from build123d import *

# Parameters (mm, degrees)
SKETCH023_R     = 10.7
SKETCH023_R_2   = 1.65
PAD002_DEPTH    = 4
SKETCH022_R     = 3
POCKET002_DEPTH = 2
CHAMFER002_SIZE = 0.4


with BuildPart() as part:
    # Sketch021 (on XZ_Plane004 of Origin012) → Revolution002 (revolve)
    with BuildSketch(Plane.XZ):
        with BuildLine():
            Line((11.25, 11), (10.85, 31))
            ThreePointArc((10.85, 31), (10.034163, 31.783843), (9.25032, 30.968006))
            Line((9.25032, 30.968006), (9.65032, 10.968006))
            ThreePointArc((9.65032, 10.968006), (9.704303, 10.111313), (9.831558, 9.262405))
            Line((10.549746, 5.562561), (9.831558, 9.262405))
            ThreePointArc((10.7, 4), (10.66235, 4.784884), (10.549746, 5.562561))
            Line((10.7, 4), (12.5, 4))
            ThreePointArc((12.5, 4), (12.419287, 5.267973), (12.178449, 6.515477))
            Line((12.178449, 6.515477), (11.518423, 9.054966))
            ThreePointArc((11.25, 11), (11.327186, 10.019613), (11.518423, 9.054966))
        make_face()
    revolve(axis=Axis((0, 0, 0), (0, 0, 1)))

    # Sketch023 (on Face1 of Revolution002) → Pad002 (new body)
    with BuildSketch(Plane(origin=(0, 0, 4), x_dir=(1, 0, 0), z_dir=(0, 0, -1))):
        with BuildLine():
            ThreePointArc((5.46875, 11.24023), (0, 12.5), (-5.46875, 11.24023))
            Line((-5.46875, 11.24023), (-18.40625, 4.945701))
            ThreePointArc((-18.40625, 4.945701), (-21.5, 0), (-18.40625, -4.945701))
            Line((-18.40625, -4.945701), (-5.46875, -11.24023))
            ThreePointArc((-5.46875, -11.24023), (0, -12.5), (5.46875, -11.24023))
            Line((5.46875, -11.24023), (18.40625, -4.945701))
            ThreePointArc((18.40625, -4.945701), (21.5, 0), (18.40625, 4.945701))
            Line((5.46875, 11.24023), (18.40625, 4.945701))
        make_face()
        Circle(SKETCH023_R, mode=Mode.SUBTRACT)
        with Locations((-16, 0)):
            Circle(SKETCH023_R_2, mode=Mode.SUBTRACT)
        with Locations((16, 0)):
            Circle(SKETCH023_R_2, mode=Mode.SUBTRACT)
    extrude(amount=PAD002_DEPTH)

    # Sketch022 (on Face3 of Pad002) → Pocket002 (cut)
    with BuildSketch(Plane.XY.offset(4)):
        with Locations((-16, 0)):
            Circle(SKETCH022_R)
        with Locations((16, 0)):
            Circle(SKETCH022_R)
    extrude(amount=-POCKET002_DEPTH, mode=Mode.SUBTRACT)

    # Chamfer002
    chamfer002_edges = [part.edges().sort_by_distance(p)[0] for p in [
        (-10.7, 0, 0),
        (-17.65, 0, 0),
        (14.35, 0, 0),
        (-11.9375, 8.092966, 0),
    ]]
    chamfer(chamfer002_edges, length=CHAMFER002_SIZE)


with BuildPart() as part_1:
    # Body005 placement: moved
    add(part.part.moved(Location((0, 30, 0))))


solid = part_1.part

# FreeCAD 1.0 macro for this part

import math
import FreeCAD as App
import Part
import Sketcher


def edges_at(feature, points):
    """Names of the edges that pass closest to the given points."""
    edges = feature.Shape.Edges
    near = lambda p: min(range(len(edges)), key=lambda i: edges[i].distToShape(Part.Vertex(*p))[0])
    return sorted({f"Edge{near(p) + 1}" for p in points})

doc = App.newDocument("Part")
body = doc.addObject("PartDesign::Body", "Body")

# Sketch on XZ plane
sketch1 = body.newObject("Sketcher::SketchObject", "Sketch")
sketch1.AttachmentSupport = (doc.getObject("XZ_Plane"), [""])
sketch1.MapMode = "FlatFace"
sketch1.addGeometry([
    Part.LineSegment(App.Vector(11.2, 11, 0), App.Vector(10.8, 31, 0)),  # 0
    Part.ArcOfCircle(Part.Circle(App.Vector(10.1, 31, 0), App.Vector(0, 0, 1), 0.8), math.radians(1), math.radians(181)),  # 1
    Part.LineSegment(App.Vector(9.3, 31, 0), App.Vector(9.7, 11, 0)),  # 2
    Part.ArcOfCircle(Part.Circle(App.Vector(19.6, 11.2, 0), App.Vector(0, 0, 1), 10), math.radians(-178.85), math.radians(-169.01)),  # 3
    Part.LineSegment(App.Vector(9.8, 9.3, 0), App.Vector(10.5, 5.6, 0)),  # 4
    Part.ArcOfCircle(Part.Circle(App.Vector(2.5, 4, 0), App.Vector(0, 0, 1), 8.2), math.radians(0), math.radians(10.99)),  # 5
    Part.LineSegment(App.Vector(10.7, 4, 0), App.Vector(12.5, 4, 0)),  # 6
    Part.ArcOfCircle(Part.Circle(App.Vector(2.5, 4, 0), App.Vector(0, 0, 1), 10), math.radians(0), math.radians(14.57)),  # 7
    Part.LineSegment(App.Vector(12.2, 6.5, 0), App.Vector(11.5, 9.1, 0)),  # 8
    Part.ArcOfCircle(Part.Circle(App.Vector(19.6, 11.2, 0), App.Vector(0, 0, 1), 8.4), math.radians(-178.85), math.radians(-165.43)),  # 9
], False)
sketch1.addConstraint([
    Sketcher.Constraint("Tangent", 0, 2, 1, 1),
    Sketcher.Constraint("Tangent", 1, 2, 2, 1),
    Sketcher.Constraint("Tangent", 2, 2, 3, 1),
    Sketcher.Constraint("Tangent", 3, 2, 4, 1),
    Sketcher.Constraint("Tangent", 4, 2, 5, 2),
    Sketcher.Constraint("Coincident", 5, 1, 6, 1),
    Sketcher.Constraint("Coincident", 6, 2, 7, 1),
    Sketcher.Constraint("Tangent", 7, 2, 8, 1),
    Sketcher.Constraint("Tangent", 8, 2, 9, 2),
    Sketcher.Constraint("Tangent", 9, 1, 0, 1),
    Sketcher.Constraint("Horizontal", 6),
    Sketcher.Constraint("Parallel", 0, 2),
    Sketcher.Constraint("Equal", 0, 2),
    Sketcher.Constraint("Radius", 1, 0.8),
    Sketcher.Constraint("DistanceX", 6, 1, 6, 2, 1.8),
    Sketcher.Constraint("DistanceY", -1, 1, 5, 3, 3.999998),
    Sketcher.Constraint("DistanceY", -1, 1, 0, 2, 31.0),
    Sketcher.Constraint("DistanceY", -1, 1, 5, 1, 4.0),
    Sketcher.Constraint("DistanceY", -1, 1, 9, 1, 11.0),
    Sketcher.Constraint("DistanceX", -1, 1, 5, 1, 10.7),
    Sketcher.Constraint("DistanceX", 1, 2, 2, 2, 0.4),
    Sketcher.Constraint("DistanceX", -1, 1, 0, 2, 10.85),
    Sketcher.Constraint("Radius", 9, 8.400061),
    Sketcher.Constraint("Radius", 3, 9.999915),
    Sketcher.Constraint("Radius", 5, 8.200045),
    Sketcher.Constraint("Radius", 7, 9.999937),
    Sketcher.Constraint("Distance", 8, 2.62386),
])
revolution = body.newObject("PartDesign::Revolution", "Revolution")
revolution.Profile = sketch1
revolution.ReferenceAxis = (sketch1, ["V_Axis"])
revolution.Angle = 360

# Sketch on XY plane
sketch2 = body.newObject("Sketcher::SketchObject", "Sketch001")
sketch2.AttachmentSupport = (doc.getObject("XY_Plane"), [""])
sketch2.MapMode = "FlatFace"
sketch2.AttachmentOffset = App.Placement(App.Vector(0, 0, 4), App.Rotation())
sketch2.addGeometry([
    Part.ArcOfCircle(Part.Circle(App.Vector(0, 0, 0), App.Vector(0, 0, 1), 12.5), math.radians(-116), math.radians(-64)),  # 0
    Part.LineSegment(App.Vector(-5.5, -11.2, 0), App.Vector(-18.4, -4.9, 0)),  # 1
    Part.ArcOfCircle(Part.Circle(App.Vector(-16, 0, 0), App.Vector(0, 0, 1), 5.5), math.radians(116), math.radians(244)),  # 2
    Part.LineSegment(App.Vector(-18.4, 4.9, 0), App.Vector(-5.5, 11.2, 0)),  # 3
    Part.ArcOfCircle(Part.Circle(App.Vector(0, 0, 0), App.Vector(0, 0, 1), 12.5), math.radians(64), math.radians(116)),  # 4
    Part.LineSegment(App.Vector(5.5, 11.2, 0), App.Vector(18.4, 4.9, 0)),  # 5
    Part.ArcOfCircle(Part.Circle(App.Vector(16, 0, 0), App.Vector(0, 0, 1), 5.5), math.radians(-64), math.radians(64)),  # 6
    Part.LineSegment(App.Vector(18.4, -4.9, 0), App.Vector(5.5, -11.2, 0)),  # 7
    Part.Circle(App.Vector(-16, 0, 0), App.Vector(0, 0, 1), 1.6),  # 8
    Part.Circle(App.Vector(0, 0, 0), App.Vector(0, 0, 1), 10.7),  # 9
    Part.Circle(App.Vector(16, 0, 0), App.Vector(0, 0, 1), 1.6),  # 10
], False)
sketch2.addConstraint([
    Sketcher.Constraint("Tangent", 0, 1, 1, 1),
    Sketcher.Constraint("Tangent", 1, 2, 2, 2),
    Sketcher.Constraint("Tangent", 2, 1, 3, 1),
    Sketcher.Constraint("Tangent", 3, 2, 4, 2),
    Sketcher.Constraint("Tangent", 4, 1, 5, 1),
    Sketcher.Constraint("Tangent", 5, 2, 6, 2),
    Sketcher.Constraint("Tangent", 6, 1, 7, 1),
    Sketcher.Constraint("Tangent", 7, 2, 0, 2),
    Sketcher.Constraint("Coincident", 0, 3, -1, 1),
    Sketcher.Constraint("Coincident", 4, 3, -1, 1),
    Sketcher.Constraint("Coincident", 9, 3, -1, 1),
    Sketcher.Constraint("Coincident", 8, 3, 2, 3),
    Sketcher.Constraint("Coincident", 10, 3, 6, 3),
    Sketcher.Constraint("Equal", 0, 4),
    Sketcher.Constraint("Equal", 2, 6),
    Sketcher.Constraint("Equal", 8, 10),
    Sketcher.Constraint("Symmetric", 2, 3, 6, 3, -1, 1),
    Sketcher.Constraint("PointOnObject", 2, 3, -1),
    Sketcher.Constraint("Diameter", 8, 3.3),
    Sketcher.Constraint("Diameter", 9, 21.4),
    Sketcher.Constraint("Radius", 0, 12.499999),
    Sketcher.Constraint("Radius", 2, 5.5),
    Sketcher.Constraint("DistanceX", 2, 3, -1, 1, 16.0),
])
pad1 = body.newObject("PartDesign::Pad", "Pad")
pad1.Profile = sketch2
pad1.Length = 4
pad1.Reversed = True

# Sketch on XY plane
sketch3 = body.newObject("Sketcher::SketchObject", "Sketch002")
sketch3.AttachmentSupport = (doc.getObject("XY_Plane"), [""])
sketch3.MapMode = "FlatFace"
sketch3.AttachmentOffset = App.Placement(App.Vector(0, 0, 4), App.Rotation())
sketch3.addGeometry([
    Part.Circle(App.Vector(-16, 0, 0), App.Vector(0, 0, 1), 3),
    Part.Circle(App.Vector(16, 0, 0), App.Vector(0, 0, 1), 3),
], False)
sketch3.addConstraint([
    Sketcher.Constraint("Equal", 0, 1),
    Sketcher.Constraint("Symmetric", 0, 3, 1, 3, -1, 1),
    Sketcher.Constraint("PointOnObject", 0, 3, -1),
    Sketcher.Constraint("Diameter", 0, 6.0),
    Sketcher.Constraint("DistanceX", 0, 3, -1, 1, 16.0),
])
pocket1 = body.newObject("PartDesign::Pocket", "Pocket")
pocket1.Profile = sketch3
pocket1.Length = 2
doc.recompute()

chamfer = body.newObject("PartDesign::Chamfer", "Chamfer")
chamfer.Base = (pocket1, edges_at(pocket1, [
    (-10.7, 0, 0),
    (-17.65, 0, 0),
    (14.35, 0, 0),
    (-11.938, 8.093, 0),
]))
chamfer.Size = 0.4
body2 = doc.addObject("PartDesign::Body", "Body001")
doc.recompute()

body.Placement = App.Placement(App.Vector(0, 30, 0), App.Rotation(App.Vector(0, 0, 1), 0))
boolean = body2.newObject("PartDesign::Boolean", "Boolean")
boolean.Type = "Fuse"
boolean.addObjects([body])

doc.recompute()
